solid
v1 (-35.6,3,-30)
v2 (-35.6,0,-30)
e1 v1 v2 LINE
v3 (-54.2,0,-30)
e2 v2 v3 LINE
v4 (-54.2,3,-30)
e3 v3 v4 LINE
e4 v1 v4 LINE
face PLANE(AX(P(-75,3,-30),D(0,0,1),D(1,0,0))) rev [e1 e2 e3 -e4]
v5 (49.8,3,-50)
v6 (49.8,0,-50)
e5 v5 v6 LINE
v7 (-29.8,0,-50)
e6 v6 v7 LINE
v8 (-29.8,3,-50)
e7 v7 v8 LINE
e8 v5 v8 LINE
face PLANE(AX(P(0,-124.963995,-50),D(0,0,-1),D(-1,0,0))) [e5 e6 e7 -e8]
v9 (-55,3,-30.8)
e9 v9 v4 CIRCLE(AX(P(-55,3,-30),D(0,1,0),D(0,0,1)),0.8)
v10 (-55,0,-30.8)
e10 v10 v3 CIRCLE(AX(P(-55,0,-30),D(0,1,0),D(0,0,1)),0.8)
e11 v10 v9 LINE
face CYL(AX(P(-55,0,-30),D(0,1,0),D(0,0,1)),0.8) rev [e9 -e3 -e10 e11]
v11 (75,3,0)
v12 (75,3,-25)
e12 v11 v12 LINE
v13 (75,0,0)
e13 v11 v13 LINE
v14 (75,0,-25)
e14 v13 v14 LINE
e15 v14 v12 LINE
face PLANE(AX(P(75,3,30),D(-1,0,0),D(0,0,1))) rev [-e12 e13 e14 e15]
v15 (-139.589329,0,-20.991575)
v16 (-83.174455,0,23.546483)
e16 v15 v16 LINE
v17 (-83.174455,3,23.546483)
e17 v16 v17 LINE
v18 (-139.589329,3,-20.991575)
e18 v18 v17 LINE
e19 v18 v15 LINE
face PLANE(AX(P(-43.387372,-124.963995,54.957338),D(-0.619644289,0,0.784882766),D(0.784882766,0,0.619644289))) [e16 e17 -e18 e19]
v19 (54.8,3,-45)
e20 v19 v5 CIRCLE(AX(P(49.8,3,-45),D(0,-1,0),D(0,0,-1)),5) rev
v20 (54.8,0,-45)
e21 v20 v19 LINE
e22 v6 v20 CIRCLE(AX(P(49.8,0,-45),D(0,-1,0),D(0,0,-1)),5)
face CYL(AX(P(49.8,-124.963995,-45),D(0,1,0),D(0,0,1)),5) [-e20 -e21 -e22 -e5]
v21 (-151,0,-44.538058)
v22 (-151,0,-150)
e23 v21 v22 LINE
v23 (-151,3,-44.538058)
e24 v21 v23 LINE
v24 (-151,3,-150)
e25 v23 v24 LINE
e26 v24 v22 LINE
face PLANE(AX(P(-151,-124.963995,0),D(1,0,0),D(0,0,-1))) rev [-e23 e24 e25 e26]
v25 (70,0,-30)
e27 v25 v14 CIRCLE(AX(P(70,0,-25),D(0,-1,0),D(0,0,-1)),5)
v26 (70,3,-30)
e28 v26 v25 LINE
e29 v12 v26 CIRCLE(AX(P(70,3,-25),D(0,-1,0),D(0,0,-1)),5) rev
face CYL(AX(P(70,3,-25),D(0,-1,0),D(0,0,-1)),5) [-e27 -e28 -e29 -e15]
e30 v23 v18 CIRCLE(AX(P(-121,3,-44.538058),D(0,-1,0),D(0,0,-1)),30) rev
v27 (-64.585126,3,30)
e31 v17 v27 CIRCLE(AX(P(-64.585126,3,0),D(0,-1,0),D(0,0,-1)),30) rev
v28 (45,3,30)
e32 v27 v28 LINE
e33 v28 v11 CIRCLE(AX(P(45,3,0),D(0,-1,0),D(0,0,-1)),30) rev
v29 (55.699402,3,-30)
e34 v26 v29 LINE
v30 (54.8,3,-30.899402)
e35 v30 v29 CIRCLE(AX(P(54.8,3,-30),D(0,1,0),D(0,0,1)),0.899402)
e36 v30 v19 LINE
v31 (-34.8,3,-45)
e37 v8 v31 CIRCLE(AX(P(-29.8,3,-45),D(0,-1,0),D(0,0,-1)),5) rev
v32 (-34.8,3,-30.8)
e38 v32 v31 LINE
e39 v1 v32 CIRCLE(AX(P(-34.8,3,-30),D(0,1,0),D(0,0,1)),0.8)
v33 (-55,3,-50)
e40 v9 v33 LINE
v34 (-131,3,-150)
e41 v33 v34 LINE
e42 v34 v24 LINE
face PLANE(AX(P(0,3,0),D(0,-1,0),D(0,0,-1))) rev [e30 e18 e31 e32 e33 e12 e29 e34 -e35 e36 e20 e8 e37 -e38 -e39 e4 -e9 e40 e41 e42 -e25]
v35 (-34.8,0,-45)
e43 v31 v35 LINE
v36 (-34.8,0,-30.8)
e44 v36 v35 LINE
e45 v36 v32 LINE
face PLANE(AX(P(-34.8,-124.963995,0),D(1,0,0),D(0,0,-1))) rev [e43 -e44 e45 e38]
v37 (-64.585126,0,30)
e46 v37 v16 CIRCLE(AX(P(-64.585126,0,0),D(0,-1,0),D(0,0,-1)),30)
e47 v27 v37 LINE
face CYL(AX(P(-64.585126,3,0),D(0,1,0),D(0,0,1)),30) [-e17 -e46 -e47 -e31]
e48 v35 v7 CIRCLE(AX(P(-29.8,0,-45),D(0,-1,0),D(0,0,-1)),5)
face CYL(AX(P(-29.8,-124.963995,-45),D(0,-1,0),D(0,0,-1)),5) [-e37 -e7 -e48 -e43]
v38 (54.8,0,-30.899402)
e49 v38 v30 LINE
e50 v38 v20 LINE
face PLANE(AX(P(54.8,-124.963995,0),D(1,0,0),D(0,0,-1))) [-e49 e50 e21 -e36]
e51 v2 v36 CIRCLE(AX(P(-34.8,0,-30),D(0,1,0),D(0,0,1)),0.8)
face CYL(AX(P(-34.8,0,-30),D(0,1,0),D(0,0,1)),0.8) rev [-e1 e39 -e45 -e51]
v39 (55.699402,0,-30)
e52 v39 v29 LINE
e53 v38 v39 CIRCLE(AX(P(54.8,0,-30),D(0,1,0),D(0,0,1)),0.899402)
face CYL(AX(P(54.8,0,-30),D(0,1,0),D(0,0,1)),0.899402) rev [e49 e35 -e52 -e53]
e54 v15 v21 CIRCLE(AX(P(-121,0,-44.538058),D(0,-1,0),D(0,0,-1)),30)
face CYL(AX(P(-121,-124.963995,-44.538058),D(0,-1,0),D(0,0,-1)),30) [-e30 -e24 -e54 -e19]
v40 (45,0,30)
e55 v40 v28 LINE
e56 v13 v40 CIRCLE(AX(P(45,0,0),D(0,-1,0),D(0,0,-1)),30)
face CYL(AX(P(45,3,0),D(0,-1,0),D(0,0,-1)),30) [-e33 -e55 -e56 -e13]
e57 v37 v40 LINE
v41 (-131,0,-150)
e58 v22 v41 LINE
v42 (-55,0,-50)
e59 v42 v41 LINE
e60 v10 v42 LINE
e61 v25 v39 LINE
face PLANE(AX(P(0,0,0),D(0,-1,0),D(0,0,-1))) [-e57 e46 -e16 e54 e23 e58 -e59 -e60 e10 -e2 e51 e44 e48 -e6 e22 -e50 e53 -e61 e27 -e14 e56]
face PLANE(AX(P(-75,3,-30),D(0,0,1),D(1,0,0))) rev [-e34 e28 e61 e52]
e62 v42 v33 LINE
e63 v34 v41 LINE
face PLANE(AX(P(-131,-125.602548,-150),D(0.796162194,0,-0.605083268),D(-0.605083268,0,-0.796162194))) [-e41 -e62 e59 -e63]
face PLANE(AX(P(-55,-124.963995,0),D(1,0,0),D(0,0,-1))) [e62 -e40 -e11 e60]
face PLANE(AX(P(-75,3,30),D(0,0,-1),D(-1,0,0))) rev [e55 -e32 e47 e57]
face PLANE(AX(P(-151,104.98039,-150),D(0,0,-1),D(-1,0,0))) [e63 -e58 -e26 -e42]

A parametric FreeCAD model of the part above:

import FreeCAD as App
import Part
import Sketcher

V = App.Vector
Q = App.Units.Quantity


def edges_at(feature, points):
    """Names of the edges that pass closest to the given points."""
    edges = feature.Shape.Edges
    near = lambda p: min(range(len(edges)), key=lambda i: edges[i].distToShape(Part.Vertex(*p))[0])
    return sorted({f"Edge{near(p) + 1}" for p in points})


def add_polygon(sketch, points):
    """Adds a closed chain of lines whose ends are joined by coincident constraints."""
    first, n = sketch.GeometryCount, len(points)
    for a, b in zip(points, points[1:] + points[:1]):
        sketch.addGeometry(Part.LineSegment(App.Vector(*a, 0), App.Vector(*b, 0)), False)
    for i in range(n):
        sketch.addConstraint(Sketcher.Constraint("Coincident", first + i, 2, first + (i + 1) % n, 1))

doc = App.newDocument("Part")
body = doc.addObject("PartDesign::Body", "Body")

sketch1 = body.newObject("Sketcher::SketchObject", "Sketch")
sketch1.AttachmentSupport = (doc.getObject("XZ_Plane"), [""])
sketch1.MapMode = "FlatFace"
add_polygon(sketch1, [(-75, -30), (-75, 30), (75, 30), (75, -30)])
sketch1.addConstraint([
    Sketcher.Constraint("Vertical", 0),
    Sketcher.Constraint("Horizontal", 1),
    Sketcher.Constraint("Vertical", 2),
    Sketcher.Constraint("Horizontal", 3),
    Sketcher.Constraint("Symmetric", 0, 2, 2, 2, -1, 1),
    Sketcher.Constraint("DistanceX", 1, 1, 1, 2, Q("150 mm")),
    Sketcher.Constraint("DistanceY", 0, 1, 0, 2, Q("60 mm")),
])
pad1 = body.newObject("PartDesign::Pad", "Pad")
pad1.Profile = sketch1
pad1.Length = 3
pad1.Reversed = True
doc.recompute()

fillet = body.newObject("PartDesign::Fillet", "Fillet")
fillet.Base = (pad1, edges_at(pad1, [(75, 1.5, 30)]))
fillet.Radius = 30

sketch2 = body.newObject("Sketcher::SketchObject", "Sketch001")
sketch2.AttachmentSupport = (doc.getObject("XZ_Plane"), [""])
sketch2.MapMode = "FlatFace"
sketch2.AttachmentOffset = App.Placement(V(0, 0, -3), App.Rotation())
add_polygon(sketch2, [(-55, -30), (-55, -50), (-151, -50), (-151, -30), (-75, 30), (-75, -30)])
add_polygon(sketch2, [(-35, -50), (-35, -30), (55, -30), (55, -50)])
sketch2.addConstraint([
    Sketcher.Constraint("Vertical", 0),
    Sketcher.Constraint("Horizontal", 1),
    Sketcher.Constraint("Vertical", 2),
    Sketcher.Constraint("Vertical", 4),
    Sketcher.Constraint("Horizontal", 5),
    Sketcher.Constraint("Vertical", 6),
    Sketcher.Constraint("Horizontal", 7),
    Sketcher.Constraint("Vertical", 8),
    Sketcher.Constraint("Horizontal", 9),
    Sketcher.Constraint("Horizontal", 2, 2, 4, 2),
    Sketcher.Constraint("Horizontal", 5, 2, 6, 2),
    Sketcher.Constraint("Horizontal", 1, 2, 8, 2),
    Sketcher.Constraint("Equal", 5, 0),
    Sketcher.Constraint("DistanceX", 1, 2, 1, 1, Q("96 mm")),
    Sketcher.Constraint("DistanceX", 5, 1, 5, 2, Q("20 mm")),
    Sketcher.Constraint("DistanceY", 4, 2, 4, 1, Q("60 mm")),
    Sketcher.Constraint("DistanceX", 7, 1, 7, 2, Q("89.6 mm")),
    Sketcher.Constraint("DistanceX", 0, 2, -1, 1, Q("55 mm")),
    Sketcher.Constraint("DistanceY", 0, 2, -1, 1, Q("50 mm")),
    Sketcher.Constraint("DistanceX", 6, 2, -1, 1, Q("34.8 mm")),
])
pad2 = body.newObject("PartDesign::Pad", "Pad001")
pad2.Profile = sketch2
pad2.Length = 3
doc.recompute()

fillet2 = body.newObject("PartDesign::Fillet", "Fillet001")
fillet2.Base = (pad2, edges_at(pad2, [(-151, 1.5, -30), (-75, 1.5, 30)]))
fillet2.Radius = 30

sketch3 = body.newObject("Sketcher::SketchObject", "Sketch002")
sketch3.AttachmentSupport = (doc.getObject("XZ_Plane"), [""])
sketch3.MapMode = "FlatFace"
sketch3.AttachmentOffset = App.Placement(V(0, 0, -3), App.Rotation())
sketch3.addGeometry([
    Part.Circle(V(-55, -30, 0), V(0, 0, 1), 0.8),
    Part.Circle(V(-34.8, -30, 0), V(0, 0, 1), 0.8),
    Part.Circle(V(54.8, -30, 0), V(0, 0, 1), 0.9),
], False)
sketch3.addConstraint([
    Sketcher.Constraint("Equal", 0, 1),
    Sketcher.Constraint("Horizontal", 0, 3, 1, 3),
    Sketcher.Constraint("Horizontal", 1, 3, 2, 3),
    Sketcher.Constraint("Diameter", 0, Q("1.6 mm")),
    Sketcher.Constraint("DistanceX", 0, 3, -1, 1, Q("55 mm")),
    Sketcher.Constraint("DistanceY", 0, 3, -1, 1, Q("30 mm")),
    Sketcher.Constraint("DistanceX", 1, 3, -1, 1, Q("34.8 mm")),
    Sketcher.Constraint("DistanceX", -1, 1, 2, 3, Q("54.8 mm")),
    Sketcher.Constraint("Diameter", 2, Q("1.798804 mm")),
])
pocket1 = body.newObject("PartDesign::Pocket", "Pocket")
pocket1.Profile = sketch3
pocket1.Type = "ThroughAll"
pocket1.Reversed = True
doc.recompute()

fillet3 = body.newObject("PartDesign::Fillet", "Fillet002")
fillet3.Base = (pocket1, edges_at(pocket1, [(-34.8, 1.5, -50), (54.8, 1.5, -50), (75, 1.5, -30)]))
fillet3.Radius = 5

sketch4 = body.newObject("Sketcher::SketchObject", "Sketch003")
sketch4.AttachmentSupport = (doc.getObject("XZ_Plane"), [""])
sketch4.MapMode = "FlatFace"
add_polygon(sketch4, [(-131, -150), (-131, -50), (-151, -50), (-151, -150)])
sketch4.addConstraint([
    Sketcher.Constraint("Vertical", 0),
    Sketcher.Constraint("Horizontal", 1),
    Sketcher.Constraint("Vertical", 2),
    Sketcher.Constraint("Horizontal", 3),
    Sketcher.Constraint("DistanceX", 1, 2, 1, 1, Q("20 mm")),
    Sketcher.Constraint("DistanceY", 0, 1, 0, 2, Q("100 mm")),
    Sketcher.Constraint("DistanceX", 0, 2, -1, 1, Q("131 mm")),
    Sketcher.Constraint("DistanceY", 0, 2, -1, 1, Q("50 mm")),
])
pad3 = body.newObject("PartDesign::Pad", "Pad002")
pad3.Profile = sketch4
pad3.Length = 3
pad3.Reversed = True

sketch5 = body.newObject("Sketcher::SketchObject", "Sketch004")
sketch5.AttachmentSupport = (doc.getObject("XZ_Plane"), [""])
sketch5.MapMode = "FlatFace"
sketch5.AttachmentOffset = App.Placement(V(0, 0, -3), App.Rotation())
add_polygon(sketch5, [(-55, -50), (-131, -150), (-131, -50)])
sketch5.addConstraint([
    Sketcher.Constraint("Vertical", 1),
    Sketcher.Constraint("Horizontal", 2),
    Sketcher.Constraint("DistanceX", 2, 1, 2, 2, Q("76 mm")),
    Sketcher.Constraint("DistanceY", 1, 1, 1, 2, Q("100 mm")),
    Sketcher.Constraint("DistanceX", 0, 2, -1, 1, Q("131 mm")),
    Sketcher.Constraint("DistanceY", 0, 2, -1, 1, Q("150 mm")),
])
pad4 = body.newObject("PartDesign::Pad", "Pad003")
pad4.Profile = sketch5
pad4.Length = 3

doc.recompute()
